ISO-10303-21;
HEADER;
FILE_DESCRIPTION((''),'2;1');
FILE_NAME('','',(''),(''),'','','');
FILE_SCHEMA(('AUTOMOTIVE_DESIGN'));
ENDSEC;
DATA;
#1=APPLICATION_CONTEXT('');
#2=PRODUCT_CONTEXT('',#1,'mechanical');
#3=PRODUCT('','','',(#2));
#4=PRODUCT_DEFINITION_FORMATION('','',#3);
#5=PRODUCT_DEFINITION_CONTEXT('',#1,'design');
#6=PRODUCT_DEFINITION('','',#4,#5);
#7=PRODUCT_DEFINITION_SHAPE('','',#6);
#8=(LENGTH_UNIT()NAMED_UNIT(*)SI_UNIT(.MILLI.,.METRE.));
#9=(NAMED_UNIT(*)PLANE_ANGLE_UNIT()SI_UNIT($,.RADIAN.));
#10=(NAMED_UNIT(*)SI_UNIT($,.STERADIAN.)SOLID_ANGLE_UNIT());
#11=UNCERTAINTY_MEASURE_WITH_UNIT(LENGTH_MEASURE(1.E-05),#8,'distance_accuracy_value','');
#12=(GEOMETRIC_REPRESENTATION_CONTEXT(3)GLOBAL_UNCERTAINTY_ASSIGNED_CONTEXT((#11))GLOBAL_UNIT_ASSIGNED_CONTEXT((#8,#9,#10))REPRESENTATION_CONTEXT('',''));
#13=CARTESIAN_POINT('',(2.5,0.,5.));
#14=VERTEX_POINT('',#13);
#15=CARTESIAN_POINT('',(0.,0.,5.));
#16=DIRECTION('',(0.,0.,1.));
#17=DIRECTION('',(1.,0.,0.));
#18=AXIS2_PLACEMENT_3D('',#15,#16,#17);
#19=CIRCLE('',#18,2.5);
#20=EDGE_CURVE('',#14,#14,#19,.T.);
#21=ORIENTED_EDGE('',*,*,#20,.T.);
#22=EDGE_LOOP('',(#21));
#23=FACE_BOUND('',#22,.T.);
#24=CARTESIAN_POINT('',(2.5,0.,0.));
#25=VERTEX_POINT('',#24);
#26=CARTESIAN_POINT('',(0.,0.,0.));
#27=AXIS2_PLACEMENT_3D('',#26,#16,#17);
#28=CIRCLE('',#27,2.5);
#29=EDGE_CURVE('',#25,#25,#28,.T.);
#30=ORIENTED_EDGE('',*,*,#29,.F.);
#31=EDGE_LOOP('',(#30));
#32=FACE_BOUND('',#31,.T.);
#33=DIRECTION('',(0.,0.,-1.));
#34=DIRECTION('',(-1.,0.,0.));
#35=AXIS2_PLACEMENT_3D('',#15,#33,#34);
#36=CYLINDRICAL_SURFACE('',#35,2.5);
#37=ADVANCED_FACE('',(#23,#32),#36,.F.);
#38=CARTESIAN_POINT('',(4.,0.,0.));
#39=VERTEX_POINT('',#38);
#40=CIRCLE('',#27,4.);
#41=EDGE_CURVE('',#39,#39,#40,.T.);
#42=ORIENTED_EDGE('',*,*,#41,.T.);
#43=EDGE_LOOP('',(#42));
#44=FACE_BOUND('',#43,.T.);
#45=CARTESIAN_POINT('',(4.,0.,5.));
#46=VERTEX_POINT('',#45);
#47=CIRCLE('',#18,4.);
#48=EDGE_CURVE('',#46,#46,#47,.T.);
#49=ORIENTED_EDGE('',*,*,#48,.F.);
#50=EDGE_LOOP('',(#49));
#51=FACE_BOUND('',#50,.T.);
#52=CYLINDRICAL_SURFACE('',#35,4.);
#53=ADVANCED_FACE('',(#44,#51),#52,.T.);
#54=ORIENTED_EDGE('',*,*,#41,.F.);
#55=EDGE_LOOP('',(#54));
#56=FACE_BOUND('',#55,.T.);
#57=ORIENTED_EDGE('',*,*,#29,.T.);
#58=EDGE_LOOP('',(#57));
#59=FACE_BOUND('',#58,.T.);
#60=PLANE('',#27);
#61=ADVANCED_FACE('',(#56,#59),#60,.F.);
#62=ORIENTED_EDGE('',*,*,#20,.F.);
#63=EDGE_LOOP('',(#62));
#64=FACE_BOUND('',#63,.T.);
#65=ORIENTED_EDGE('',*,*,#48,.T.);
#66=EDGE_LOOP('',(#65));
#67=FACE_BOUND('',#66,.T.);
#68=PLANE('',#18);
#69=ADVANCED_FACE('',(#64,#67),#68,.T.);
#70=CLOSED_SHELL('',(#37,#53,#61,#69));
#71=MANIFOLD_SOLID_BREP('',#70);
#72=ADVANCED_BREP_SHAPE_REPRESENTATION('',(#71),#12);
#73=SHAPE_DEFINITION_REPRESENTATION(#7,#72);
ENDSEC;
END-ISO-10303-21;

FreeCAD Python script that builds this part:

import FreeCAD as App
import Part
import Sketcher
Q = App.Units.Quantity

doc = App.newDocument("Part")
body = doc.addObject("PartDesign::Body", "Body")

# Sketch on XY plane
sketch1 = body.newObject("Sketcher::SketchObject", "Sketch")
sketch1.AttachmentSupport = (doc.getObject("XY_Plane"), [""])
sketch1.MapMode = "FlatFace"
sketch1.addGeometry([
    Part.Circle(App.Vector(0, 0, 0), App.Vector(0, 0, 1), 4),
    Part.Circle(App.Vector(0, 0, 0), App.Vector(0, 0, 1), 2.5),
], False)
sketch1.addConstraint([
    Sketcher.Constraint("Coincident", 0, 3, -1, 1),
    Sketcher.Constraint("Coincident", 1, 3, -1, 1),
    Sketcher.Constraint("Diameter", 0, Q("8 mm")),
    Sketcher.Constraint("Diameter", 1, Q("5 mm")),
])
pad1 = body.newObject("PartDesign::Pad", "Pad")
pad1.Profile = sketch1
pad1.Length = 5

doc.recompute()
